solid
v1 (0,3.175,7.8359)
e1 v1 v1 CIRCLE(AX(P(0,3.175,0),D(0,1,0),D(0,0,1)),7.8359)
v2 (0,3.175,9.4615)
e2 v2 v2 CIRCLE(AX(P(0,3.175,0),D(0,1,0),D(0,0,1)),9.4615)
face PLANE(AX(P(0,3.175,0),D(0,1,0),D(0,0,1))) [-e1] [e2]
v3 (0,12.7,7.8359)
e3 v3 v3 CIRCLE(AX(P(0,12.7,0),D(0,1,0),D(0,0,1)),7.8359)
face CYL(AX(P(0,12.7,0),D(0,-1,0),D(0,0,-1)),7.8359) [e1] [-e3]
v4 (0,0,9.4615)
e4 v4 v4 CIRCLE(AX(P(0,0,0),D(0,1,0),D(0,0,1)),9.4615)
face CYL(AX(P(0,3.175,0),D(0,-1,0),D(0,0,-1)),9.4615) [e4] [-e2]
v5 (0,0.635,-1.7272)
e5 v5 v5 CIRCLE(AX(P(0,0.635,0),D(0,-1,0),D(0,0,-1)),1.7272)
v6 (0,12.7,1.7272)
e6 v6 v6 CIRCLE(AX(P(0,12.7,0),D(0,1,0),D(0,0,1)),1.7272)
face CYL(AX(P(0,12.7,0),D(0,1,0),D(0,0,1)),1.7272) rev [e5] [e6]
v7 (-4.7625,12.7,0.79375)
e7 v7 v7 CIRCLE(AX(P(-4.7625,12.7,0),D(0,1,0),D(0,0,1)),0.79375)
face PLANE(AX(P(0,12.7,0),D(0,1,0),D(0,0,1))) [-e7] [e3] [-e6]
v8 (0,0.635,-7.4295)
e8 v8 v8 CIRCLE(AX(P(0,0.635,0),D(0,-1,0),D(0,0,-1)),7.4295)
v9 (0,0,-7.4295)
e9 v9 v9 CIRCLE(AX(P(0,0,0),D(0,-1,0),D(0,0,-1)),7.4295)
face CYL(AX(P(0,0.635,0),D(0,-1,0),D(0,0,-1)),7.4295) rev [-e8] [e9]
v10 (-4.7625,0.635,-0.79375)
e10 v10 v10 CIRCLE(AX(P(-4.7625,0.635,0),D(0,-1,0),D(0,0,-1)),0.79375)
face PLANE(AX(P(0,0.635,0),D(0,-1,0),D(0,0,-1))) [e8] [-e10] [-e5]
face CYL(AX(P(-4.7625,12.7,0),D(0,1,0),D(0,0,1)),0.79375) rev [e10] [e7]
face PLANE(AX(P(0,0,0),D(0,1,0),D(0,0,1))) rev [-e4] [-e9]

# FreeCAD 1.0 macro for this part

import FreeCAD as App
import Part
import Sketcher
Q = App.Units.Quantity

doc = App.newDocument("Part")
body = doc.addObject("PartDesign::Body", "Body")

# Sketch on XZ plane
sketch1 = body.newObject("Sketcher::SketchObject", "Sketch")
sketch1.AttachmentSupport = (doc.getObject("XZ_Plane"), [""])
sketch1.MapMode = "FlatFace"
sketch1.addGeometry(Part.Circle(App.Vector(0, 0, 0), App.Vector(0, 0, 1), 9.4615), False)
sketch1.addConstraint(Sketcher.Constraint("Coincident", 0, 3, -1, 1))
sketch1.addConstraint(Sketcher.Constraint("Diameter", 0, Q("0.745 in")))
pad1 = body.newObject("PartDesign::Pad", "Pad")
pad1.Profile = sketch1
pad1.Length = Q("0.125 in")
pad1.Reversed = True

# Sketch on XZ plane
sketch2 = body.newObject("Sketcher::SketchObject", "Sketch001")
sketch2.AttachmentSupport = (doc.getObject("XZ_Plane"), [""])
sketch2.MapMode = "FlatFace"
sketch2.AttachmentOffset = App.Placement(App.Vector(0, 0, -0.125 * 25.4), App.Rotation())
sketch2.addGeometry(Part.Circle(App.Vector(0, 0, 0), App.Vector(0, 0, 1), 7.8359), False)
sketch2.addConstraint(Sketcher.Constraint("Coincident", 0, 3, -1, 1))
sketch2.addConstraint(Sketcher.Constraint("Diameter", 0, Q("0.617 in")))
pad2 = body.newObject("PartDesign::Pad", "Pad001")
pad2.Profile = sketch2
pad2.Length = Q("0.375 in")
pad2.Reversed = True

# Sketch on XZ plane
sketch3 = body.newObject("Sketcher::SketchObject", "Sketch002")
sketch3.AttachmentSupport = (doc.getObject("XZ_Plane"), [""])
sketch3.MapMode = "FlatFace"
sketch3.addGeometry(Part.Circle(App.Vector(0, 0, 0), App.Vector(0, 0, 1), 7.4295), False)
sketch3.addConstraint(Sketcher.Constraint("Coincident", 0, 3, -1, 1))
sketch3.addConstraint(Sketcher.Constraint("Diameter", 0, Q("0.585 in")))
pocket1 = body.newObject("PartDesign::Pocket", "Pocket")
pocket1.Profile = sketch3
pocket1.Length = Q("0.025 in")

# Sketch on XZ plane
sketch4 = body.newObject("Sketcher::SketchObject", "Sketch003")
sketch4.AttachmentSupport = (doc.getObject("XZ_Plane"), [""])
sketch4.MapMode = "FlatFace"
sketch4.AttachmentOffset = App.Placement(App.Vector(0, 0, -0.5 * 25.4), App.Rotation())
sketch4.addGeometry(Part.Circle(App.Vector(0, 0, 0), App.Vector(0, 0, 1), 1.7272), False)
sketch4.addConstraint(Sketcher.Constraint("Coincident", 0, 3, -1, 1))
sketch4.addConstraint(Sketcher.Constraint("Diameter", 0, Q("0.136 in")))
doc.recompute()
hole = body.newObject("PartDesign::Hole", "Hole")
hole.Profile = sketch4
hole.ThreadType = "None"
hole.Diameter = Q("0.136 in")
hole.DepthType = "Dimension"
hole.Depth = Q("0.475 in")
hole.DrillPoint = "Flat"
hole.Reversed = True

# Sketch on XZ plane
sketch5 = body.newObject("Sketcher::SketchObject", "Sketch004")
sketch5.AttachmentSupport = (doc.getObject("XZ_Plane"), [""])
sketch5.MapMode = "FlatFace"
sketch5.AttachmentOffset = App.Placement(App.Vector(0, 0, -0.5 * 25.4), App.Rotation())
sketch5.addGeometry(Part.Circle(App.Vector(-4.7625, 0, 0), App.Vector(0, 0, 1), 0.79375), False)
sketch5.addConstraint(Sketcher.Constraint("PointOnObject", 0, 3, -1))
sketch5.addConstraint(Sketcher.Constraint("Diameter", 0, Q("0.0625 in")))
sketch5.addConstraint(Sketcher.Constraint("DistanceX", 0, 3, -1, 1, Q("0.1875 in")))
doc.recompute()
hole2 = body.newObject("PartDesign::Hole", "Hole001")
hole2.Profile = sketch5
hole2.ThreadType = "None"
hole2.Diameter = Q("0.0625 in")
hole2.DepthType = "ThroughAll"
hole2.Reversed = True

doc.recompute()
